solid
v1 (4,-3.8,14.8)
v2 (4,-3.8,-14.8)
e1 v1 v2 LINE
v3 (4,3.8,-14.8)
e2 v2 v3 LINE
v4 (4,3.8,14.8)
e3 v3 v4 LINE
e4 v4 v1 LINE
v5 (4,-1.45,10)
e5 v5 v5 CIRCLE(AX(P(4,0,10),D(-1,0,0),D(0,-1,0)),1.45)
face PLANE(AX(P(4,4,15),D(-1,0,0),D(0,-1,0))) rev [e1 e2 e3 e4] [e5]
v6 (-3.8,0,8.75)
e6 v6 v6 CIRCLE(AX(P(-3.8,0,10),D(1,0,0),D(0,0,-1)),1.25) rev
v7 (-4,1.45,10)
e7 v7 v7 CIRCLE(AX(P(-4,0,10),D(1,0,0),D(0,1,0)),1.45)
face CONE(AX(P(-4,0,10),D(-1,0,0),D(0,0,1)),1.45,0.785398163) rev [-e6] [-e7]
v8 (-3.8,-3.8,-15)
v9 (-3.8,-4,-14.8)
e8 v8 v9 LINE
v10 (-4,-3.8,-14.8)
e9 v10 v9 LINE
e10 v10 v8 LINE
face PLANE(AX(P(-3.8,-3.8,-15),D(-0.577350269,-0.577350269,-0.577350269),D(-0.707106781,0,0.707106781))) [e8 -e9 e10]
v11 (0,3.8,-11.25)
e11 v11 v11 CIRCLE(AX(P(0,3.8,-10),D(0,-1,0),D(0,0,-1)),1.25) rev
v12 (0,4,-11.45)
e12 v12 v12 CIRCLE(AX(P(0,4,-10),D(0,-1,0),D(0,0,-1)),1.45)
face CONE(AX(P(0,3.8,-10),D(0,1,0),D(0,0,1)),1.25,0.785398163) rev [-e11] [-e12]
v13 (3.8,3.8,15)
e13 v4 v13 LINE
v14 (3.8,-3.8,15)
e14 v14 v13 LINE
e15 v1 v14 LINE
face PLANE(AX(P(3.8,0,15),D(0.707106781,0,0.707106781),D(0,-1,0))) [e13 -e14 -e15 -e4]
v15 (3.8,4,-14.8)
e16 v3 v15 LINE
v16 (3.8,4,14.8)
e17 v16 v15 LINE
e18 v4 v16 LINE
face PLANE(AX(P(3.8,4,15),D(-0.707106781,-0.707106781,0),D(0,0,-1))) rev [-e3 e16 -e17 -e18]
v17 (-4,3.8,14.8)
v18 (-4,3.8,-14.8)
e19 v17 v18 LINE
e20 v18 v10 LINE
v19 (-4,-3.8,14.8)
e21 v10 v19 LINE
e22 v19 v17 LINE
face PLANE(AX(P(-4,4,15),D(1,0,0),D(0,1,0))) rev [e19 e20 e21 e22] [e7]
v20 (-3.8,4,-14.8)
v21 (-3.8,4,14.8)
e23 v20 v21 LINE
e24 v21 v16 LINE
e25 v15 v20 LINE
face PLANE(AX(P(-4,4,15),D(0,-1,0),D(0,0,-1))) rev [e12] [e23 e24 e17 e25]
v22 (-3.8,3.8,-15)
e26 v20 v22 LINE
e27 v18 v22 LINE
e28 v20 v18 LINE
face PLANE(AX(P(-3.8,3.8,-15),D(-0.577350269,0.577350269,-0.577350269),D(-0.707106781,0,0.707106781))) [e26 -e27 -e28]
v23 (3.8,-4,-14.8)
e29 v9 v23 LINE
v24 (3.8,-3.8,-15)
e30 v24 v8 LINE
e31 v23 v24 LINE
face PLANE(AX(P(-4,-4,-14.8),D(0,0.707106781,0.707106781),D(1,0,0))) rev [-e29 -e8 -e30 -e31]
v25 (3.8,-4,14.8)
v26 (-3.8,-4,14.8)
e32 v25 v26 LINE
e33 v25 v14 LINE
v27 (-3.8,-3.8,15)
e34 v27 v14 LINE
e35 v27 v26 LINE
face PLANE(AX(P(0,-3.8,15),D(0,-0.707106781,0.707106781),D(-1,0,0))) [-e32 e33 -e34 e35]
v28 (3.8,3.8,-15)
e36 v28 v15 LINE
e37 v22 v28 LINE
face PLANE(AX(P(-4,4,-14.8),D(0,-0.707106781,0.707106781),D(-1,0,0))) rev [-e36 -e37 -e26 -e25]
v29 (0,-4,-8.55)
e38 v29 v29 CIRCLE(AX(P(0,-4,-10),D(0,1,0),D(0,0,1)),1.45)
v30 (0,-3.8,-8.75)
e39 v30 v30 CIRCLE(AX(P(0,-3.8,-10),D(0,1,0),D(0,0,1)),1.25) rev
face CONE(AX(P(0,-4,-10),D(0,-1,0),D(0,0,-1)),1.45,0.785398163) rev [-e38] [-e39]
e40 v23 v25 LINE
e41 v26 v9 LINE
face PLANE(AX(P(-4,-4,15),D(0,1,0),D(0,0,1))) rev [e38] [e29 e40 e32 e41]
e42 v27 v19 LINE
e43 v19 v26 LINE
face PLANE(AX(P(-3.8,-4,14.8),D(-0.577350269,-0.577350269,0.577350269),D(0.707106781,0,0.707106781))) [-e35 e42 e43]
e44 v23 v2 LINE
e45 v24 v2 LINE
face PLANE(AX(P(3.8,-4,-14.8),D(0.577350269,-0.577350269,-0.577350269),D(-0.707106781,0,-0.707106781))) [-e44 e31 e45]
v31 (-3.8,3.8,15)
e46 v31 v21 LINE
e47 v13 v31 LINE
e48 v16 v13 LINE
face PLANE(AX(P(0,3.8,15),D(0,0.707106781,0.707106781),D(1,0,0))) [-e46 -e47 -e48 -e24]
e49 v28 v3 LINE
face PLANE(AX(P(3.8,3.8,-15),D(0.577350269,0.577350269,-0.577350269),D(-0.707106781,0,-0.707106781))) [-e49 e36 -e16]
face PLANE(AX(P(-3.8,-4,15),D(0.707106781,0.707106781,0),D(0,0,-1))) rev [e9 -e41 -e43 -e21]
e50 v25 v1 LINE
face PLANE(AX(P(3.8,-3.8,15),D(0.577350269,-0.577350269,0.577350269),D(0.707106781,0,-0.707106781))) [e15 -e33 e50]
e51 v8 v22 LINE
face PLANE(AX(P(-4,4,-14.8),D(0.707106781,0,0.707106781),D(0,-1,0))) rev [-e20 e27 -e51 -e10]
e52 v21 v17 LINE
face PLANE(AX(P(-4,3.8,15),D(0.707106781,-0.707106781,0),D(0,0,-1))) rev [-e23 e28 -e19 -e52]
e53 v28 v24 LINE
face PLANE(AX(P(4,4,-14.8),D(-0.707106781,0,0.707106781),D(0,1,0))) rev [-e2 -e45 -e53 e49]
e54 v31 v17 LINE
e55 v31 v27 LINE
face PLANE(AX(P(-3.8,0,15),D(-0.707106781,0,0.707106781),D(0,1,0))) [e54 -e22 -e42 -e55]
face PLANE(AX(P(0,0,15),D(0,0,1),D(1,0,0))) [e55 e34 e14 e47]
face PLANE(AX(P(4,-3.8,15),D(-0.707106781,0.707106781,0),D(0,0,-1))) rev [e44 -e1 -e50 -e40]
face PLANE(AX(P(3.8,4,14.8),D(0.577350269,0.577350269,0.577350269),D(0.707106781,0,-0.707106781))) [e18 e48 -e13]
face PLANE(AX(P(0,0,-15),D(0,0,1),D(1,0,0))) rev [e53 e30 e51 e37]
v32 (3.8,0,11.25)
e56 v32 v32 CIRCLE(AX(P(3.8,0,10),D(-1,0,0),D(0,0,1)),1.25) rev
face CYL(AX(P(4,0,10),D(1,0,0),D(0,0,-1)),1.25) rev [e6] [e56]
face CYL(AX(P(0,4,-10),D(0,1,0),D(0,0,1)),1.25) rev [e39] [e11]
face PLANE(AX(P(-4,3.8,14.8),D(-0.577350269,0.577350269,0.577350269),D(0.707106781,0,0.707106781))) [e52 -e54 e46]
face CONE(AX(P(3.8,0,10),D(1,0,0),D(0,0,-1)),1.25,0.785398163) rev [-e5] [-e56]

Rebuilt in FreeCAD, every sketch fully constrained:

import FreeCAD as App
import Part
import Sketcher
from FreeCAD import Vector
Q = App.Units.Quantity

doc = App.newDocument("Part")
body = doc.addObject("PartDesign::Body", "Body")

# Sketch on XY plane
sketch1 = doc.addObject("Sketcher::SketchObject", "Sketch")
body.addObject(sketch1)
sketch1.AttachmentSupport = (doc.XY_Plane, [""])
sketch1.MapMode = "FlatFace"
sketch1.addGeometry(Part.LineSegment(Vector(-4, 4, 0), Vector(-4, -4, 0)), False)
sketch1.addGeometry(Part.LineSegment(Vector(-4, -4, 0), Vector(4, -4, 0)), False)
sketch1.addGeometry(Part.LineSegment(Vector(4, -4, 0), Vector(4, 4, 0)), False)
sketch1.addGeometry(Part.LineSegment(Vector(4, 4, 0), Vector(-4, 4, 0)), False)
sketch1.addConstraint(Sketcher.Constraint("Coincident", 0, 2, 1, 1))
sketch1.addConstraint(Sketcher.Constraint("Coincident", 1, 2, 2, 1))
sketch1.addConstraint(Sketcher.Constraint("Coincident", 2, 2, 3, 1))
sketch1.addConstraint(Sketcher.Constraint("Coincident", 3, 2, 0, 1))
sketch1.addConstraint(Sketcher.Constraint("Vertical", 0))
sketch1.addConstraint(Sketcher.Constraint("Horizontal", 1))
sketch1.addConstraint(Sketcher.Constraint("Vertical", 2))
sketch1.addConstraint(Sketcher.Constraint("Horizontal", 3))
sketch1.addConstraint(Sketcher.Constraint("Symmetric", 0, 2, 2, 2, -1, 1))
sketch1.addConstraint(Sketcher.Constraint("Equal", 3, 0))
sketch1.addConstraint(Sketcher.Constraint("DistanceX", 1, 1, 1, 2, Q("8 mm")))
pad1 = doc.addObject("PartDesign::Pad", "Pad")
body.addObject(pad1)
pad1.Profile = sketch1
pad1.Length = 30
pad1.Midplane = True

# Sketch on YZ plane
sketch2 = doc.addObject("Sketcher::SketchObject", "Sketch001")
body.addObject(sketch2)
sketch2.AttachmentSupport = (doc.YZ_Plane, [""])
sketch2.MapMode = "FlatFace"
sketch2.AttachmentOffset = App.Placement(Vector(0, 0, 4), App.Rotation())
sketch2.addGeometry(Part.Circle(Vector(0, 10, 0), Vector(0, 0, 1), 1.2), False)
sketch2.addConstraint(Sketcher.Constraint("PointOnObject", 0, 3, -2))
sketch2.addConstraint(Sketcher.Constraint("Diameter", 0, Q("2.5 mm")))
sketch2.addConstraint(Sketcher.Constraint("DistanceY", -1, 1, 0, 3, Q("10 mm")))
doc.recompute()
hole = doc.addObject("PartDesign::Hole", "Hole")
body.addObject(hole)
hole.Profile = sketch2
hole.ThreadType = "None"
hole.Diameter = 2.5
hole.DepthType = "ThroughAll"

# Sketch on XZ plane
sketch3 = doc.addObject("Sketcher::SketchObject", "Sketch002")
body.addObject(sketch3)
sketch3.AttachmentSupport = (doc.XZ_Plane, [""])
sketch3.MapMode = "FlatFace"
sketch3.AttachmentOffset = App.Placement(Vector(0, 0, -4), App.Rotation())
sketch3.addGeometry(Part.Circle(Vector(0, -10, 0), Vector(0, 0, 1), 1.2), False)
sketch3.addConstraint(Sketcher.Constraint("PointOnObject", 0, 3, -2))
sketch3.addConstraint(Sketcher.Constraint("Diameter", 0, Q("2.5 mm")))
sketch3.addConstraint(Sketcher.Constraint("DistanceY", 0, 3, -1, 1, Q("10 mm")))
doc.recompute()
hole2 = doc.addObject("PartDesign::Hole", "Hole001")
body.addObject(hole2)
hole2.Profile = sketch3
hole2.ThreadType = "None"
hole2.Diameter = 2.5
hole2.DepthType = "ThroughAll"
hole2.Reversed = True
doc.recompute()

chamfer = doc.addObject("PartDesign::Chamfer", "Chamfer")
body.addObject(chamfer)
chamfer.Base = (hole2, ["Edge1"])
chamfer.UseAllEdges = True
chamfer.Size = 0.2

doc.recompute()
